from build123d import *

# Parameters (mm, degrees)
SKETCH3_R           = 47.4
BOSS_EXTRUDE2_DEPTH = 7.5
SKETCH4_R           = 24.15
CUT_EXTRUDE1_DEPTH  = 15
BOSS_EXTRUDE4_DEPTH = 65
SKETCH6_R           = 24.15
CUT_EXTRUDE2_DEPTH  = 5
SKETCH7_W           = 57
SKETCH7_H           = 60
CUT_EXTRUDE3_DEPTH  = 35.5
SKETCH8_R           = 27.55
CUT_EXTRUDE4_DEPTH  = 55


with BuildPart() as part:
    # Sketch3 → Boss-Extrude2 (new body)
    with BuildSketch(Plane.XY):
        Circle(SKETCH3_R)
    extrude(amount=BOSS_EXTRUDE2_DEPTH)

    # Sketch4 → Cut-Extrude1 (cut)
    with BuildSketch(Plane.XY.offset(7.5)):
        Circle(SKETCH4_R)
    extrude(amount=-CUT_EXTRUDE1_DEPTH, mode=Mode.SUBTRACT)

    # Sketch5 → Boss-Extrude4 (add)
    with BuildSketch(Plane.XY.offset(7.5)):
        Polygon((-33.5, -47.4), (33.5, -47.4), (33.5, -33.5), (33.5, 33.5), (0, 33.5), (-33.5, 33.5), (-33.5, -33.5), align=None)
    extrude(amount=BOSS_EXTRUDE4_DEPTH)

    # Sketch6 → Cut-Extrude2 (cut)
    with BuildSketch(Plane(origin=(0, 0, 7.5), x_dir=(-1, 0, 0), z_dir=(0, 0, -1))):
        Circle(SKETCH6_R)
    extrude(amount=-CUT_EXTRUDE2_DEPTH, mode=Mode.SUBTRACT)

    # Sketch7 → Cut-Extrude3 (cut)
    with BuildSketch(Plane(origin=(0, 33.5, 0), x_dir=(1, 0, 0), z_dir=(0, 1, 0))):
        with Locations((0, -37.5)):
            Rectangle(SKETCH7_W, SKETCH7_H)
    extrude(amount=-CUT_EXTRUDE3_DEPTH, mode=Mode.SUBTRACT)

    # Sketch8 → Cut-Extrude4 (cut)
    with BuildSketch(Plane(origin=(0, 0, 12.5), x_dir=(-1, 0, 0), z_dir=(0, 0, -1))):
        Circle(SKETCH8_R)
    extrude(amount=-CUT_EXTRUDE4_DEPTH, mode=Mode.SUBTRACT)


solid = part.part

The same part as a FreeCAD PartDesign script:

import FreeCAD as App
import Part
import Sketcher
Q = App.Units.Quantity

doc = App.newDocument("Part")
body = doc.addObject("PartDesign::Body", "Body")

sketch1 = body.newObject("Sketcher::SketchObject", "Sketch")
sketch1.AttachmentSupport = (doc.getObject("XY_Plane"), [""])
sketch1.MapMode = "FlatFace"
sketch1.addGeometry(Part.Circle(App.Vector(0, 0, 0), App.Vector(0, 0, 1), 47), False)
sketch1.addConstraint([
    Sketcher.Constraint("Coincident", 0, 3, -1, 1),
    Sketcher.Constraint("Diameter", 0, Q("94.8 mm")),
])
pad1 = body.newObject("PartDesign::Pad", "Pad")
pad1.Profile = sketch1
pad1.Length = 7.5

sketch2 = body.newObject("Sketcher::SketchObject", "Sketch001")
sketch2.AttachmentSupport = (doc.getObject("XY_Plane"), [""])
sketch2.MapMode = "FlatFace"
sketch2.AttachmentOffset = App.Placement(App.Vector(0, 0, 7.5), App.Rotation())
sketch2.addGeometry(Part.Circle(App.Vector(0, 0, 0), App.Vector(0, 0, 1), 24), False)
sketch2.addConstraint([
    Sketcher.Constraint("Coincident", 0, 3, -1, 1),
    Sketcher.Constraint("Diameter", 0, Q("48.3 mm")),
])
pocket1 = body.newObject("PartDesign::Pocket", "Pocket")
pocket1.Profile = sketch2
pocket1.Length = 15

sketch3 = body.newObject("Sketcher::SketchObject", "Sketch002")
sketch3.AttachmentSupport = (doc.getObject("XY_Plane"), [""])
sketch3.MapMode = "FlatFace"
sketch3.AttachmentOffset = App.Placement(App.Vector(0, 0, 7.5), App.Rotation())
sketch3.addGeometry([
    Part.LineSegment(App.Vector(-34, -47, 0), App.Vector(34, -47, 0)),
    Part.LineSegment(App.Vector(34, -47, 0), App.Vector(34, 34, 0)),
    Part.LineSegment(App.Vector(34, 34, 0), App.Vector(-34, 34, 0)),
    Part.LineSegment(App.Vector(-34, 34, 0), App.Vector(-34, -47, 0)),
], False)
sketch3.addConstraint([
    Sketcher.Constraint("Coincident", 0, 2, 1, 1),
    Sketcher.Constraint("Coincident", 1, 2, 2, 1),
    Sketcher.Constraint("Coincident", 2, 2, 3, 1),
    Sketcher.Constraint("Coincident", 3, 2, 0, 1),
    Sketcher.Constraint("Horizontal", 0),
    Sketcher.Constraint("Vertical", 1),
    Sketcher.Constraint("Horizontal", 2),
    Sketcher.Constraint("Vertical", 3),
    Sketcher.Constraint("DistanceX", 0, 1, 0, 2, Q("67 mm")),
    Sketcher.Constraint("DistanceY", 1, 1, 1, 2, Q("80.9 mm")),
    Sketcher.Constraint("DistanceX", -1, 1, 0, 2, Q("33.5 mm")),
    Sketcher.Constraint("DistanceY", 0, 2, -1, 1, Q("47.4 mm")),
])
pad2 = body.newObject("PartDesign::Pad", "Pad001")
pad2.Profile = sketch3
pad2.Length = 65

sketch4 = body.newObject("Sketcher::SketchObject", "Sketch003")
sketch4.AttachmentSupport = (doc.getObject("XY_Plane"), [""])
sketch4.MapMode = "FlatFace"
sketch4.AttachmentOffset = App.Placement(App.Vector(0, 0, 7.5), App.Rotation())
sketch4.addGeometry(Part.Circle(App.Vector(0, 0, 0), App.Vector(0, 0, 1), 24), False)
sketch4.addConstraint([
    Sketcher.Constraint("Coincident", 0, 3, -1, 1),
    Sketcher.Constraint("Diameter", 0, Q("48.3 mm")),
])
pocket2 = body.newObject("PartDesign::Pocket", "Pocket001")
pocket2.Profile = sketch4
pocket2.Length = 5
pocket2.Reversed = True

sketch5 = body.newObject("Sketcher::SketchObject", "Sketch004")
sketch5.AttachmentSupport = (doc.getObject("XZ_Plane"), [""])
sketch5.MapMode = "FlatFace"
sketch5.AttachmentOffset = App.Placement(App.Vector(0, 0, -33.5), App.Rotation())
sketch5.addGeometry([
    Part.LineSegment(App.Vector(-28, 8, 0), App.Vector(-28, 68, 0)),
    Part.LineSegment(App.Vector(-28, 68, 0), App.Vector(28, 68, 0)),
    Part.LineSegment(App.Vector(28, 68, 0), App.Vector(28, 8, 0)),
    Part.LineSegment(App.Vector(28, 8, 0), App.Vector(-28, 8, 0)),
], False)
sketch5.addConstraint([
    Sketcher.Constraint("Coincident", 0, 2, 1, 1),
    Sketcher.Constraint("Coincident", 1, 2, 2, 1),
    Sketcher.Constraint("Coincident", 2, 2, 3, 1),
    Sketcher.Constraint("Coincident", 3, 2, 0, 1),
    Sketcher.Constraint("Vertical", 0),
    Sketcher.Constraint("Horizontal", 1),
    Sketcher.Constraint("Vertical", 2),
    Sketcher.Constraint("Horizontal", 3),
    Sketcher.Constraint("DistanceX", 1, 1, 1, 2, Q("57 mm")),
    Sketcher.Constraint("DistanceY", 0, 1, 0, 2, Q("60 mm")),
    Sketcher.Constraint("DistanceX", 0, 2, -1, 1, Q("28.5 mm")),
    Sketcher.Constraint("DistanceY", -1, 1, 0, 2, Q("67.5 mm")),
])
pocket3 = body.newObject("PartDesign::Pocket", "Pocket002")
pocket3.Profile = sketch5
pocket3.Length = 35.5
pocket3.Reversed = True

sketch6 = body.newObject("Sketcher::SketchObject", "Sketch005")
sketch6.AttachmentSupport = (doc.getObject("XY_Plane"), [""])
sketch6.MapMode = "FlatFace"
sketch6.AttachmentOffset = App.Placement(App.Vector(0, 0, 12.5), App.Rotation())
sketch6.addGeometry(Part.Circle(App.Vector(0, 0, 0), App.Vector(0, 0, 1), 28), False)
sketch6.addConstraint([
    Sketcher.Constraint("Coincident", 0, 3, -1, 1),
    Sketcher.Constraint("Diameter", 0, Q("55.1 mm")),
])
pocket4 = body.newObject("PartDesign::Pocket", "Pocket003")
pocket4.Profile = sketch6
pocket4.Length = 55
pocket4.Reversed = True

doc.recompute()
